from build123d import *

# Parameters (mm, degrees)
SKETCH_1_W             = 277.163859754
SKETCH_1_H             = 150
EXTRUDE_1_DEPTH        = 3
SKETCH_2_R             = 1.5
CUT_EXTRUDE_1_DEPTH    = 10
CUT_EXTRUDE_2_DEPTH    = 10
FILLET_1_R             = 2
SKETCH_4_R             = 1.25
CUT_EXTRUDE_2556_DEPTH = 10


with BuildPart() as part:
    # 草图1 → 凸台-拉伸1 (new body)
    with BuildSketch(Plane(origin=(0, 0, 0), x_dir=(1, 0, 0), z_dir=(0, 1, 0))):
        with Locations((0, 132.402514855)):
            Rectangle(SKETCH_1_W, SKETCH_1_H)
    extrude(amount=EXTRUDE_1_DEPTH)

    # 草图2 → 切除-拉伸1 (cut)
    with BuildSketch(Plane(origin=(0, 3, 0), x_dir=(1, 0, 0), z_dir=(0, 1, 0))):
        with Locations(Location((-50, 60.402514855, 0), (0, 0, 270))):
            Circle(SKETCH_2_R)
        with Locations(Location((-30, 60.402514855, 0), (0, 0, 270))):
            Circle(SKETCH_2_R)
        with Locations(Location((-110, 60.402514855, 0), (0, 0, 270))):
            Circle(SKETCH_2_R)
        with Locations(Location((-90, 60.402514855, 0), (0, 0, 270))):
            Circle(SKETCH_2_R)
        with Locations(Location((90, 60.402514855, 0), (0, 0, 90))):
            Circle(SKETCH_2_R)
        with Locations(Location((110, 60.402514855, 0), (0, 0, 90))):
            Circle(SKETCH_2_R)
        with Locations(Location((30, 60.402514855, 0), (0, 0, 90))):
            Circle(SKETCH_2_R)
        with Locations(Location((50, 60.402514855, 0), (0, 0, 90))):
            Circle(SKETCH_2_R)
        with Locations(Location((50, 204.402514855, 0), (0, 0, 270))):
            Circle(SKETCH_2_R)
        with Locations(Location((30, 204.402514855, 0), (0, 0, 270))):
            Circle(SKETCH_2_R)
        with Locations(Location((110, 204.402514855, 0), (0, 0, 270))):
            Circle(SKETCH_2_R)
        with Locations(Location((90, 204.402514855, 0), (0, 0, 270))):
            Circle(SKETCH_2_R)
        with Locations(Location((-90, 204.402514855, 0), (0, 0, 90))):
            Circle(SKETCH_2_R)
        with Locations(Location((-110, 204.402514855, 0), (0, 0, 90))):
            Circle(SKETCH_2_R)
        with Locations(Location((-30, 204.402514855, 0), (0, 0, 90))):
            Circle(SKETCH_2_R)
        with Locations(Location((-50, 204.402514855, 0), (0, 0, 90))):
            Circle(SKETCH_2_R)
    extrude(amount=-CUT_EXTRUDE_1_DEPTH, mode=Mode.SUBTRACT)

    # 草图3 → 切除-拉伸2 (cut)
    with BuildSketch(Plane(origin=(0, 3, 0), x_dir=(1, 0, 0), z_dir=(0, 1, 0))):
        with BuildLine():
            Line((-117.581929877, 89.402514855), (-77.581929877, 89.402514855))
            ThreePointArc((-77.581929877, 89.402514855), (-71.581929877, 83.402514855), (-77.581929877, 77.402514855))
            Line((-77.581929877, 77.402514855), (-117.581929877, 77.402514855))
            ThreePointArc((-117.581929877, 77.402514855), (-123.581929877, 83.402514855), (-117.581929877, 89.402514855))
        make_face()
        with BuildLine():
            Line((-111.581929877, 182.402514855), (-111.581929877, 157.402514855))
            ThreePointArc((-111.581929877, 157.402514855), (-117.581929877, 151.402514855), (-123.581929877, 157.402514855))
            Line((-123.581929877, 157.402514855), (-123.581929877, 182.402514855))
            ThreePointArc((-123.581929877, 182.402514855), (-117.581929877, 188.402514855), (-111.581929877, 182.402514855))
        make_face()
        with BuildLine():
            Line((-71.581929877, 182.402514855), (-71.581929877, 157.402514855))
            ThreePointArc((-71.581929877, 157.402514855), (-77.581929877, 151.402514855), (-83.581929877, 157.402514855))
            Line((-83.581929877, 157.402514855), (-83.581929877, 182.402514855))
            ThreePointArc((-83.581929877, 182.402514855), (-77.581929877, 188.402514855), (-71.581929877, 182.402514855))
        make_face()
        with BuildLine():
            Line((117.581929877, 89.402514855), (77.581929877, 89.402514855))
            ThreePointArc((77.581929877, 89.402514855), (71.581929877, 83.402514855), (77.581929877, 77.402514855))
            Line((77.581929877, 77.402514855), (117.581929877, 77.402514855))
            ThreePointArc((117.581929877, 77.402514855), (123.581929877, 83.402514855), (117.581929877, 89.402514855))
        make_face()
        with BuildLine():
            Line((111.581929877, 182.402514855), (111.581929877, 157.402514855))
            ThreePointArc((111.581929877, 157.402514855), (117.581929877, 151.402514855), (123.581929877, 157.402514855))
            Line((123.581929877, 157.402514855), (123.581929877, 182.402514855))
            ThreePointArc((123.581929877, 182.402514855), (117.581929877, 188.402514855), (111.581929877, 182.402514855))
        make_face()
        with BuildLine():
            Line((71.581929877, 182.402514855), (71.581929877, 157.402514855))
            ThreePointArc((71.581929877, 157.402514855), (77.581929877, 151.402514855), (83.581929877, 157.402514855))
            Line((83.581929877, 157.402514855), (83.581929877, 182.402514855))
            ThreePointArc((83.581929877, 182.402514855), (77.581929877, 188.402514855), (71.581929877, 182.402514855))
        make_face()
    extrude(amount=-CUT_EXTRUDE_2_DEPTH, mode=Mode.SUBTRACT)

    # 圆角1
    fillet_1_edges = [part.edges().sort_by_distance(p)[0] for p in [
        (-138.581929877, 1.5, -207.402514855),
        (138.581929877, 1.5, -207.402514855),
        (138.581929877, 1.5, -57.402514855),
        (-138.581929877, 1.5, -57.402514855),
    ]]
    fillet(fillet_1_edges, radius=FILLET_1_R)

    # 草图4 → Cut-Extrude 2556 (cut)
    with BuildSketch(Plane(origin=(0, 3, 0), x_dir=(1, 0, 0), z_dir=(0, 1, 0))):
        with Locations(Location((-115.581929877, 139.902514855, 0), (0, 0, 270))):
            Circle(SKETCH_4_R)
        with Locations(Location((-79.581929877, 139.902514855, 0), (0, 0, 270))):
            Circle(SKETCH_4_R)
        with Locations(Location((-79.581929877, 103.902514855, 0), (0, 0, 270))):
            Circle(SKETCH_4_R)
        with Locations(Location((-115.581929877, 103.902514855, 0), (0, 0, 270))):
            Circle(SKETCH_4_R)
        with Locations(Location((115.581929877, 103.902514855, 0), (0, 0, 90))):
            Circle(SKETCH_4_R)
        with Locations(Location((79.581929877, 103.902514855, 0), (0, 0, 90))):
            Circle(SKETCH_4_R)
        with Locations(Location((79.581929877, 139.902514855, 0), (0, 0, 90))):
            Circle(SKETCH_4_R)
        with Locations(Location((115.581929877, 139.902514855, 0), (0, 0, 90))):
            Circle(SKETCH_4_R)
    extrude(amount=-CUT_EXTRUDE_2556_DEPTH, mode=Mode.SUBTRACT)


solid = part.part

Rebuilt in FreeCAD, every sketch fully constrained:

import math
import FreeCAD as App
import Part
import Sketcher
Q = App.Units.Quantity


def edges_at(feature, points):
    """Names of the edges that pass closest to the given points."""
    edges = feature.Shape.Edges
    near = lambda p: min(range(len(edges)), key=lambda i: edges[i].distToShape(Part.Vertex(*p))[0])
    return sorted({f"Edge{near(p) + 1}" for p in points})


def add_polygon(sketch, points):
    """Adds a closed chain of lines whose ends are joined by coincident constraints."""
    first, n = sketch.GeometryCount, len(points)
    for a, b in zip(points, points[1:] + points[:1]):
        sketch.addGeometry(Part.LineSegment(App.Vector(*a, 0), App.Vector(*b, 0)), False)
    for i in range(n):
        sketch.addConstraint(Sketcher.Constraint("Coincident", first + i, 2, first + (i + 1) % n, 1))

doc = App.newDocument("Part")
body = doc.addObject("PartDesign::Body", "Body")

# Sketch on XZ plane
sketch1 = doc.addObject("Sketcher::SketchObject", "Sketch")
body.addObject(sketch1)
sketch1.AttachmentSupport = (doc.XZ_Plane, [""])
sketch1.MapMode = "FlatFace"
add_polygon(sketch1, [(-138.58193, -207.402515), (-138.58193, -57.402515), (138.58193, -57.402515), (138.58193, -207.402515)])  # lines 0-3
sketch1.addConstraint(Sketcher.Constraint("Vertical", 0))
sketch1.addConstraint(Sketcher.Constraint("Horizontal", 1))
sketch1.addConstraint(Sketcher.Constraint("Vertical", 2))
sketch1.addConstraint(Sketcher.Constraint("Horizontal", 3))
sketch1.addConstraint(Sketcher.Constraint("DistanceY", 0, 1, 0, 2, Q("150 mm")))
sketch1.addConstraint(Sketcher.Constraint("DistanceX", 1, 1, 1, 2, Q("277.16386 mm")))
sketch1.addConstraint(Sketcher.Constraint("DistanceX", 0, 2, -1, 1, Q("138.58193 mm")))
sketch1.addConstraint(Sketcher.Constraint("DistanceY", 0, 2, -1, 1, Q("57.402515 mm")))
pad1 = doc.addObject("PartDesign::Pad", "Pad")
body.addObject(pad1)
pad1.Profile = sketch1
pad1.Length = 3
pad1.Reversed = True

# Sketch on XZ plane
sketch2 = doc.addObject("Sketcher::SketchObject", "Sketch001")
body.addObject(sketch2)
sketch2.AttachmentSupport = (doc.XZ_Plane, [""])
sketch2.MapMode = "FlatFace"
sketch2.AttachmentOffset = App.Placement(App.Vector(0, 0, -3), App.Rotation())
sketch2.addGeometry(Part.Circle(App.Vector(-50, -60.402515, 0), App.Vector(0, 0, 1), 1.5), False)
sketch2.addGeometry(Part.Circle(App.Vector(-30, -60.402515, 0), App.Vector(0, 0, 1), 1.5), False)
sketch2.addGeometry(Part.Circle(App.Vector(-110, -60.402515, 0), App.Vector(0, 0, 1), 1.5), False)
sketch2.addGeometry(Part.Circle(App.Vector(-90, -60.402515, 0), App.Vector(0, 0, 1), 1.5), False)
sketch2.addGeometry(Part.Circle(App.Vector(90, -60.402515, 0), App.Vector(0, 0, 1), 1.5), False)
sketch2.addGeometry(Part.Circle(App.Vector(110, -60.402515, 0), App.Vector(0, 0, 1), 1.5), False)
sketch2.addGeometry(Part.Circle(App.Vector(30, -60.402515, 0), App.Vector(0, 0, 1), 1.5), False)
sketch2.addGeometry(Part.Circle(App.Vector(50, -60.402515, 0), App.Vector(0, 0, 1), 1.5), False)
sketch2.addGeometry(Part.Circle(App.Vector(50, -204.402515, 0), App.Vector(0, 0, 1), 1.5), False)
sketch2.addGeometry(Part.Circle(App.Vector(30, -204.402515, 0), App.Vector(0, 0, 1), 1.5), False)
sketch2.addGeometry(Part.Circle(App.Vector(110, -204.402515, 0), App.Vector(0, 0, 1), 1.5), False)
sketch2.addGeometry(Part.Circle(App.Vector(90, -204.402515, 0), App.Vector(0, 0, 1), 1.5), False)
sketch2.addGeometry(Part.Circle(App.Vector(-90, -204.402515, 0), App.Vector(0, 0, 1), 1.5), False)
sketch2.addGeometry(Part.Circle(App.Vector(-110, -204.402515, 0), App.Vector(0, 0, 1), 1.5), False)
sketch2.addGeometry(Part.Circle(App.Vector(-30, -204.402515, 0), App.Vector(0, 0, 1), 1.5), False)
sketch2.addGeometry(Part.Circle(App.Vector(-50, -204.402515, 0), App.Vector(0, 0, 1), 1.5), False)
sketch2.addConstraint(Sketcher.Constraint("Equal", 0, 1))
sketch2.addConstraint(Sketcher.Constraint("Equal", 1, 2))
sketch2.addConstraint(Sketcher.Constraint("Equal", 2, 3))
sketch2.addConstraint(Sketcher.Constraint("Equal", 3, 4))
sketch2.addConstraint(Sketcher.Constraint("Equal", 4, 5))
sketch2.addConstraint(Sketcher.Constraint("Equal", 5, 6))
sketch2.addConstraint(Sketcher.Constraint("Equal", 6, 7))
sketch2.addConstraint(Sketcher.Constraint("Equal", 7, 8))
sketch2.addConstraint(Sketcher.Constraint("Equal", 8, 9))
sketch2.addConstraint(Sketcher.Constraint("Equal", 9, 10))
sketch2.addConstraint(Sketcher.Constraint("Equal", 10, 11))
sketch2.addConstraint(Sketcher.Constraint("Equal", 11, 12))
sketch2.addConstraint(Sketcher.Constraint("Equal", 12, 13))
sketch2.addConstraint(Sketcher.Constraint("Equal", 13, 14))
sketch2.addConstraint(Sketcher.Constraint("Equal", 14, 15))
sketch2.addConstraint(Sketcher.Constraint("Symmetric", 3, 3, 4, 3, -2))
sketch2.addConstraint(Sketcher.Constraint("Symmetric", 2, 3, 5, 3, -2))
sketch2.addConstraint(Sketcher.Constraint("Symmetric", 1, 3, 6, 3, -2))
sketch2.addConstraint(Sketcher.Constraint("Symmetric", 0, 3, 7, 3, -2))
sketch2.addConstraint(Sketcher.Constraint("Symmetric", 11, 3, 12, 3, -2))
sketch2.addConstraint(Sketcher.Constraint("Symmetric", 10, 3, 13, 3, -2))
sketch2.addConstraint(Sketcher.Constraint("Symmetric", 9, 3, 14, 3, -2))
sketch2.addConstraint(Sketcher.Constraint("Symmetric", 8, 3, 15, 3, -2))
sketch2.addConstraint(Sketcher.Constraint("Horizontal", 0, 3, 1, 3))
sketch2.addConstraint(Sketcher.Constraint("Horizontal", 1, 3, 2, 3))
sketch2.addConstraint(Sketcher.Constraint("Horizontal", 2, 3, 3, 3))
sketch2.addConstraint(Sketcher.Constraint("Horizontal", 8, 3, 9, 3))
sketch2.addConstraint(Sketcher.Constraint("Horizontal", 9, 3, 10, 3))
sketch2.addConstraint(Sketcher.Constraint("Horizontal", 10, 3, 11, 3))
sketch2.addConstraint(Sketcher.Constraint("Vertical", 7, 3, 8, 3))
sketch2.addConstraint(Sketcher.Constraint("Vertical", 6, 3, 9, 3))
sketch2.addConstraint(Sketcher.Constraint("Vertical", 5, 3, 10, 3))
sketch2.addConstraint(Sketcher.Constraint("Vertical", 4, 3, 11, 3))
sketch2.addConstraint(Sketcher.Constraint("Diameter", 0, Q("3 mm")))
sketch2.addConstraint(Sketcher.Constraint("DistanceX", 0, 3, -1, 1, Q("50 mm")))
sketch2.addConstraint(Sketcher.Constraint("DistanceX", 1, 3, -1, 1, Q("30 mm")))
sketch2.addConstraint(Sketcher.Constraint("DistanceX", 2, 3, -1, 1, Q("110 mm")))
sketch2.addConstraint(Sketcher.Constraint("DistanceX", 3, 3, -1, 1, Q("90 mm")))
sketch2.addConstraint(Sketcher.Constraint("DistanceY", 8, 3, 7, 3, Q("144 mm")))
sketch2.addConstraint(Sketcher.Constraint("DistanceY", 0, 3, -1, 1, Q("60.402515 mm")))
pocket1 = doc.addObject("PartDesign::Pocket", "Pocket")
body.addObject(pocket1)
pocket1.Profile = sketch2
pocket1.Length = 10
pocket1.Reversed = True

# Sketch on XZ plane
sketch3 = doc.addObject("Sketcher::SketchObject", "Sketch002")
body.addObject(sketch3)
sketch3.AttachmentSupport = (doc.XZ_Plane, [""])
sketch3.MapMode = "FlatFace"
sketch3.AttachmentOffset = App.Placement(App.Vector(0, 0, -3), App.Rotation())
sketch3.addGeometry(Part.LineSegment(App.Vector(-77.58193, -89.402515, 0), App.Vector(-117.58193, -89.402515, 0)), False)
sketch3.addGeometry(Part.ArcOfCircle(Part.Circle(App.Vector(-117.58193, -83.402515, 0), App.Vector(0, 0, 1), 6), math.radians(90), math.radians(270)), False)
sketch3.addGeometry(Part.LineSegment(App.Vector(-117.58193, -77.402515, 0), App.Vector(-77.58193, -77.402515, 0)), False)
sketch3.addGeometry(Part.ArcOfCircle(Part.Circle(App.Vector(-77.58193, -83.402515, 0), App.Vector(0, 0, 1), 6), math.radians(-90), math.radians(90)), False)
sketch3.addGeometry(Part.LineSegment(App.Vector(-111.58193, -157.402515, 0), App.Vector(-111.58193, -182.402515, 0)), False)
sketch3.addGeometry(Part.ArcOfCircle(Part.Circle(App.Vector(-117.58193, -182.402515, 0), App.Vector(0, 0, 1), 6), math.radians(180), math.radians(360)), False)
sketch3.addGeometry(Part.LineSegment(App.Vector(-123.58193, -182.402515, 0), App.Vector(-123.58193, -157.402515, 0)), False)
sketch3.addGeometry(Part.ArcOfCircle(Part.Circle(App.Vector(-117.58193, -157.402515, 0), App.Vector(0, 0, 1), 6), math.radians(0), math.radians(180)), False)
sketch3.addGeometry(Part.LineSegment(App.Vector(-71.58193, -157.402515, 0), App.Vector(-71.58193, -182.402515, 0)), False)
sketch3.addGeometry(Part.ArcOfCircle(Part.Circle(App.Vector(-77.58193, -182.402515, 0), App.Vector(0, 0, 1), 6), math.radians(180), math.radians(360)), False)
sketch3.addGeometry(Part.LineSegment(App.Vector(-83.58193, -182.402515, 0), App.Vector(-83.58193, -157.402515, 0)), False)
sketch3.addGeometry(Part.ArcOfCircle(Part.Circle(App.Vector(-77.58193, -157.402515, 0), App.Vector(0, 0, 1), 6), math.radians(0), math.radians(180)), False)
sketch3.addGeometry(Part.LineSegment(App.Vector(117.58193, -89.402515, 0), App.Vector(77.58193, -89.402515, 0)), False)
sketch3.addGeometry(Part.ArcOfCircle(Part.Circle(App.Vector(77.58193, -83.402515, 0), App.Vector(0, 0, 1), 6), math.radians(90), math.radians(270)), False)
sketch3.addGeometry(Part.LineSegment(App.Vector(77.58193, -77.402515, 0), App.Vector(117.58193, -77.402515, 0)), False)
sketch3.addGeometry(Part.ArcOfCircle(Part.Circle(App.Vector(117.58193, -83.402515, 0), App.Vector(0, 0, 1), 6), math.radians(-90), math.radians(90)), False)
sketch3.addGeometry(Part.LineSegment(App.Vector(111.58193, -182.402515, 0), App.Vector(111.58193, -157.402515, 0)), False)
sketch3.addGeometry(Part.ArcOfCircle(Part.Circle(App.Vector(117.58193, -157.402515, 0), App.Vector(0, 0, 1), 6), math.radians(0), math.radians(180)), False)
sketch3.addGeometry(Part.LineSegment(App.Vector(123.58193, -157.402515, 0), App.Vector(123.58193, -182.402515, 0)), False)
sketch3.addGeometry(Part.ArcOfCircle(Part.Circle(App.Vector(117.58193, -182.402515, 0), App.Vector(0, 0, 1), 6), math.radians(180), math.radians(360)), False)
sketch3.addGeometry(Part.LineSegment(App.Vector(71.58193, -182.402515, 0), App.Vector(71.58193, -157.402515, 0)), False)
sketch3.addGeometry(Part.ArcOfCircle(Part.Circle(App.Vector(77.58193, -157.402515, 0), App.Vector(0, 0, 1), 6), math.radians(0), math.radians(180)), False)
sketch3.addGeometry(Part.LineSegment(App.Vector(83.58193, -157.402515, 0), App.Vector(83.58193, -182.402515, 0)), False)
sketch3.addGeometry(Part.ArcOfCircle(Part.Circle(App.Vector(77.58193, -182.402515, 0), App.Vector(0, 0, 1), 6), math.radians(180), math.radians(360)), False)
sketch3.addConstraint(Sketcher.Constraint("Tangent", 0, 2, 1, 2))
sketch3.addConstraint(Sketcher.Constraint("Tangent", 1, 1, 2, 1))
sketch3.addConstraint(Sketcher.Constraint("Tangent", 2, 2, 3, 2))
sketch3.addConstraint(Sketcher.Constraint("Tangent", 3, 1, 0, 1))
sketch3.addConstraint(Sketcher.Constraint("Tangent", 4, 2, 5, 2))
sketch3.addConstraint(Sketcher.Constraint("Tangent", 5, 1, 6, 1))
sketch3.addConstraint(Sketcher.Constraint("Tangent", 6, 2, 7, 2))
sketch3.addConstraint(Sketcher.Constraint("Tangent", 7, 1, 4, 1))
sketch3.addConstraint(Sketcher.Constraint("Tangent", 8, 2, 9, 2))
sketch3.addConstraint(Sketcher.Constraint("Tangent", 9, 1, 10, 1))
sketch3.addConstraint(Sketcher.Constraint("Tangent", 10, 2, 11, 2))
sketch3.addConstraint(Sketcher.Constraint("Tangent", 11, 1, 8, 1))
sketch3.addConstraint(Sketcher.Constraint("Tangent", 12, 2, 13, 2))
sketch3.addConstraint(Sketcher.Constraint("Tangent", 13, 1, 14, 1))
sketch3.addConstraint(Sketcher.Constraint("Tangent", 14, 2, 15, 2))
sketch3.addConstraint(Sketcher.Constraint("Tangent", 15, 1, 12, 1))
sketch3.addConstraint(Sketcher.Constraint("Tangent", 16, 2, 17, 2))
sketch3.addConstraint(Sketcher.Constraint("Tangent", 17, 1, 18, 1))
sketch3.addConstraint(Sketcher.Constraint("Tangent", 18, 2, 19, 2))
sketch3.addConstraint(Sketcher.Constraint("Tangent", 19, 1, 16, 1))
sketch3.addConstraint(Sketcher.Constraint("Tangent", 20, 2, 21, 2))
sketch3.addConstraint(Sketcher.Constraint("Tangent", 21, 1, 22, 1))
sketch3.addConstraint(Sketcher.Constraint("Tangent", 22, 2, 23, 2))
sketch3.addConstraint(Sketcher.Constraint("Tangent", 23, 1, 20, 1))
sketch3.addConstraint(Sketcher.Constraint("Horizontal", 0))
sketch3.addConstraint(Sketcher.Constraint("Horizontal", 2))
sketch3.addConstraint(Sketcher.Constraint("Vertical", 4))
sketch3.addConstraint(Sketcher.Constraint("Vertical", 6))
sketch3.addConstraint(Sketcher.Constraint("Vertical", 8))
sketch3.addConstraint(Sketcher.Constraint("Vertical", 10))
sketch3.addConstraint(Sketcher.Constraint("Horizontal", 12))
sketch3.addConstraint(Sketcher.Constraint("Horizontal", 14))
sketch3.addConstraint(Sketcher.Constraint("Vertical", 16))
sketch3.addConstraint(Sketcher.Constraint("Vertical", 18))
sketch3.addConstraint(Sketcher.Constraint("Vertical", 20))
sketch3.addConstraint(Sketcher.Constraint("Vertical", 22))
sketch3.addConstraint(Sketcher.Constraint("Equal", 3, 5))
sketch3.addConstraint(Sketcher.Constraint("Equal", 7, 9))
sketch3.addConstraint(Sketcher.Constraint("Equal", 11, 13))
sketch3.addConstraint(Sketcher.Constraint("Equal", 15, 17))
sketch3.addConstraint(Sketcher.Constraint("Equal", 19, 21))
sketch3.addConstraint(Sketcher.Constraint("Symmetric", 3, 3, 13, 3, -2))
sketch3.addConstraint(Sketcher.Constraint("Symmetric", 7, 3, 17, 3, -2))
sketch3.addConstraint(Sketcher.Constraint("Symmetric", 11, 3, 21, 3, -2))
sketch3.addConstraint(Sketcher.Constraint("Horizontal", 5, 3, 9, 3))
sketch3.addConstraint(Sketcher.Constraint("Horizontal", 7, 3, 11, 3))
sketch3.addConstraint(Sketcher.Constraint("Horizontal", 9, 3, 19, 3))
sketch3.addConstraint(Sketcher.Constraint("Horizontal", 19, 3, 23, 3))
sketch3.addConstraint(Sketcher.Constraint("Vertical", 1, 3, 5, 3))
sketch3.addConstraint(Sketcher.Constraint("Vertical", 3, 3, 9, 3))
sketch3.addConstraint(Sketcher.Constraint("Vertical", 15, 3, 17, 3))
sketch3.addConstraint(Sketcher.Constraint("Radius", 1, Q("6 mm")))
sketch3.addConstraint(Sketcher.Constraint("DistanceX", 0, 2, 0, 1, Q("40 mm")))
sketch3.addConstraint(Sketcher.Constraint("DistanceY", 4, 2, 4, 1, Q("25 mm")))
sketch3.addConstraint(Sketcher.Constraint("DistanceY", 5, 3, 1, 3, Q("99 mm")))
sketch3.addConstraint(Sketcher.Constraint("DistanceX", 1, 3, -1, 1, Q("117.58193 mm")))
sketch3.addConstraint(Sketcher.Constraint("DistanceY", 1, 3, -1, 1, Q("83.402515 mm")))
pocket2 = doc.addObject("PartDesign::Pocket", "Pocket001")
body.addObject(pocket2)
pocket2.Profile = sketch3
pocket2.Length = 10
pocket2.Reversed = True
doc.recompute()

fillet = doc.addObject("PartDesign::Fillet", "Fillet")
body.addObject(fillet)
fillet.Base = (pocket2, edges_at(pocket2, [
    (-138.582, 1.5, -207.403),
    (138.582, 1.5, -207.403),
    (138.582, 1.5, -57.403),
    (-138.582, 1.5, -57.403),
]))
fillet.Radius = 2

# Sketch on XZ plane
sketch4 = doc.addObject("Sketcher::SketchObject", "Sketch003")
body.addObject(sketch4)
sketch4.AttachmentSupport = (doc.XZ_Plane, [""])
sketch4.MapMode = "FlatFace"
sketch4.AttachmentOffset = App.Placement(App.Vector(0, 0, -3), App.Rotation())
sketch4.addGeometry(Part.Circle(App.Vector(-115.58193, -139.902515, 0), App.Vector(0, 0, 1), 1.25), False)
sketch4.addGeometry(Part.Circle(App.Vector(-79.58193, -139.902515, 0), App.Vector(0, 0, 1), 1.25), False)
sketch4.addGeometry(Part.Circle(App.Vector(-79.58193, -103.902515, 0), App.Vector(0, 0, 1), 1.25), False)
sketch4.addGeometry(Part.Circle(App.Vector(-115.58193, -103.902515, 0), App.Vector(0, 0, 1), 1.25), False)
sketch4.addGeometry(Part.Circle(App.Vector(115.58193, -103.902515, 0), App.Vector(0, 0, 1), 1.25), False)
sketch4.addGeometry(Part.Circle(App.Vector(79.58193, -103.902515, 0), App.Vector(0, 0, 1), 1.25), False)
sketch4.addGeometry(Part.Circle(App.Vector(79.58193, -139.902515, 0), App.Vector(0, 0, 1), 1.25), False)
sketch4.addGeometry(Part.Circle(App.Vector(115.58193, -139.902515, 0), App.Vector(0, 0, 1), 1.25), False)
sketch4.addConstraint(Sketcher.Constraint("Equal", 0, 1))
sketch4.addConstraint(Sketcher.Constraint("Equal", 1, 2))
sketch4.addConstraint(Sketcher.Constraint("Equal", 2, 3))
sketch4.addConstraint(Sketcher.Constraint("Equal", 3, 4))
sketch4.addConstraint(Sketcher.Constraint("Equal", 4, 5))
sketch4.addConstraint(Sketcher.Constraint("Equal", 5, 6))
sketch4.addConstraint(Sketcher.Constraint("Equal", 6, 7))
sketch4.addConstraint(Sketcher.Constraint("Symmetric", 3, 3, 4, 3, -2))
sketch4.addConstraint(Sketcher.Constraint("Symmetric", 2, 3, 5, 3, -2))
sketch4.addConstraint(Sketcher.Constraint("Symmetric", 1, 3, 6, 3, -2))
sketch4.addConstraint(Sketcher.Constraint("Symmetric", 0, 3, 7, 3, -2))
sketch4.addConstraint(Sketcher.Constraint("Horizontal", 0, 3, 1, 3))
sketch4.addConstraint(Sketcher.Constraint("Horizontal", 2, 3, 3, 3))
sketch4.addConstraint(Sketcher.Constraint("Vertical", 1, 3, 2, 3))
sketch4.addConstraint(Sketcher.Constraint("Vertical", 0, 3, 3, 3))
sketch4.addConstraint(Sketcher.Constraint("Diameter", 0, Q("2.5 mm")))
sketch4.addConstraint(Sketcher.Constraint("DistanceX", 0, 3, 1, 3, Q("36 mm")))
sketch4.addConstraint(Sketcher.Constraint("DistanceY", 1, 3, 2, 3, Q("36 mm")))
sketch4.addConstraint(Sketcher.Constraint("DistanceX", 0, 3, -1, 1, Q("115.58193 mm")))
sketch4.addConstraint(Sketcher.Constraint("DistanceY", 0, 3, -1, 1, Q("139.902515 mm")))
pocket3 = doc.addObject("PartDesign::Pocket", "Pocket002")
body.addObject(pocket3)
pocket3.Profile = sketch4
pocket3.Length = 10
pocket3.Reversed = True

doc.recompute()
